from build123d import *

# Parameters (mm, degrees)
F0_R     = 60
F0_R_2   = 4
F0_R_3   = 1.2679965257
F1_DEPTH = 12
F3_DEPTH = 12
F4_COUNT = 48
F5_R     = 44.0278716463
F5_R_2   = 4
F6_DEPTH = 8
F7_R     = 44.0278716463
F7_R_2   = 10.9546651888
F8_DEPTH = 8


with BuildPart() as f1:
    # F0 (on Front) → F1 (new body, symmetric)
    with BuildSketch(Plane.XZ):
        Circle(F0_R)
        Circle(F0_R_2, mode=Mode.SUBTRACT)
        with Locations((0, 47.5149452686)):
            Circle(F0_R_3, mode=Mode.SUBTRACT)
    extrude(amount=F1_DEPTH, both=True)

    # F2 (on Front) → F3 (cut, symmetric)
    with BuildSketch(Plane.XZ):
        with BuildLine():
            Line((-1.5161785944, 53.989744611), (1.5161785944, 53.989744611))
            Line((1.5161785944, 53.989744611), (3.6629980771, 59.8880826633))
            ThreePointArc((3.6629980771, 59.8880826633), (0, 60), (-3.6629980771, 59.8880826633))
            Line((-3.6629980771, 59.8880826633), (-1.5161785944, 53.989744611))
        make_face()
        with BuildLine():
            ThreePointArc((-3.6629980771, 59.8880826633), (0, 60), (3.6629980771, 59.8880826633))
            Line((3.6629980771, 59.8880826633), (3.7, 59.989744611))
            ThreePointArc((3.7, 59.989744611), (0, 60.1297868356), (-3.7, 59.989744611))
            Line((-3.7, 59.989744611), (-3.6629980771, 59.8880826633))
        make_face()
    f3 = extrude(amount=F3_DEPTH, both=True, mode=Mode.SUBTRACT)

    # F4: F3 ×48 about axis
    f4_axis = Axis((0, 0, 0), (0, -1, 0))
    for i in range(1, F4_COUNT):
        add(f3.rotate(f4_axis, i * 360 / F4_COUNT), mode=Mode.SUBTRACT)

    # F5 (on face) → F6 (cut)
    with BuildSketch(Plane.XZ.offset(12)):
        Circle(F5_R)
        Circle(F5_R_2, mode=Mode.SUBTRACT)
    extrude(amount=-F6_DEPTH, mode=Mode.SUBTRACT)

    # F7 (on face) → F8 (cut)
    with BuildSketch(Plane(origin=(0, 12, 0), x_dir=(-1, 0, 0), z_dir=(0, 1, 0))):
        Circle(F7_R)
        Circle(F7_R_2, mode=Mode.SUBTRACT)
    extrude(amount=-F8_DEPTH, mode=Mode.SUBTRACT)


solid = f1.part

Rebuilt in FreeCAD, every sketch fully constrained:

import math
import FreeCAD as App
import Part
import Sketcher
from FreeCAD import Vector
Q = App.Units.Quantity

doc = App.newDocument("Part")
params = doc.addObject("Spreadsheet::Sheet", "Params")
for row, (alias, value) in enumerate([
    ("sketch1_diameter", "120 mm"),
    ("sketch1_diameter2", "8 mm"),
    ("pad1_length", "24 mm"),
    ("pocket1_length", "24 mm"),
    ("sketch3_diameter", "8 mm"),
    ("pocket2_length", "8 mm"),
    ("pocket3_length", "8 mm"),
], start=1):
    params.set(f"A{row}", alias)
    params.set(f"B{row}", "=" + value)
    params.setAlias(f"B{row}", alias)

body = doc.addObject("PartDesign::Body", "Body")

sketch1 = body.newObject("Sketcher::SketchObject", "Sketch")
sketch1.AttachmentSupport = (doc.getObject("XZ_Plane"), [""])
sketch1.MapMode = "FlatFace"
sketch1.addGeometry([
    Part.Circle(Vector(0, 0, 0), Vector(0, 0, 1), 60),
    Part.Circle(Vector(0, 0, 0), Vector(0, 0, 1), 4),
    Part.Circle(Vector(0, 47.5, 0), Vector(0, 0, 1), 1.3),
], False)
sketch1.addConstraint([
    Sketcher.Constraint("Coincident", 0, 3, -1, 1),
    Sketcher.Constraint("Coincident", 1, 3, -1, 1),
    Sketcher.Constraint("PointOnObject", 2, 3, -2),
    Sketcher.Constraint("Diameter", 0, 120.0),
    Sketcher.Constraint("Diameter", 1, 8.0),
    Sketcher.Constraint("Diameter", 2, 2.535993),
    Sketcher.Constraint("DistanceY", -1, 1, 2, 3, 47.514945),
])
sketch1.setExpression("Constraints[3]", "Params.sketch1_diameter")
sketch1.setExpression("Constraints[4]", "Params.sketch1_diameter2")
pad1 = body.newObject("PartDesign::Pad", "Pad")
pad1.Profile = sketch1
pad1.setExpression("Length", "Params.pad1_length")
pad1.Midplane = True

sketch2 = body.newObject("Sketcher::SketchObject", "Sketch001")
sketch2.AttachmentSupport = (doc.getObject("XZ_Plane"), [""])
sketch2.MapMode = "FlatFace"
sketch2.addGeometry([
    Part.LineSegment(Vector(-1.52, 53.99, 0), Vector(1.52, 53.99, 0)),
    Part.LineSegment(Vector(1.52, 53.99, 0), Vector(3.66, 59.89, 0)),
    Part.LineSegment(Vector(3.66, 59.89, 0), Vector(3.7, 59.99, 0)),
    Part.ArcOfCircle(Part.Circle(Vector(0, 11.18, 0), Vector(0, 0, 1), 48.95), math.radians(85.66), math.radians(94.34)),
    Part.LineSegment(Vector(-3.7, 59.99, 0), Vector(-3.66, 59.89, 0)),
    Part.LineSegment(Vector(-3.66, 59.89, 0), Vector(-1.52, 53.99, 0)),
], False)
sketch2.addConstraint([
    Sketcher.Constraint("Coincident", 0, 2, 1, 1),
    Sketcher.Constraint("Coincident", 1, 2, 2, 1),
    Sketcher.Constraint("Coincident", 2, 2, 3, 1),
    Sketcher.Constraint("Coincident", 3, 2, 4, 1),
    Sketcher.Constraint("Coincident", 4, 2, 5, 1),
    Sketcher.Constraint("Coincident", 5, 2, 0, 1),
    Sketcher.Constraint("Horizontal", 0),
    Sketcher.Constraint("Symmetric", 2, 2, 3, 2, -2),
    Sketcher.Constraint("Symmetric", 1, 2, 4, 2, -2),
    Sketcher.Constraint("Parallel", 1, 2),
    Sketcher.Constraint("Parallel", 4, 5),
    Sketcher.Constraint("Angle", 1, Q("70 deg")),
    Sketcher.Constraint("DistanceY", 0, 2, 2, 2, 6.0),
    Sketcher.Constraint("DistanceX", -1, 1, 2, 2, 3.7),
    Sketcher.Constraint("DistanceX", -1, 1, 1, 2, 3.662998),
    Sketcher.Constraint("Radius", 3, 48.948136),
    Sketcher.Constraint("DistanceY", -1, 1, 3, 3, 11.18165),
])
pocket1 = body.newObject("PartDesign::Pocket", "Pocket")
pocket1.Profile = sketch2
pocket1.setExpression("Length", "Params.pocket1_length")
pocket1.Midplane = True
doc.recompute()

polarpattern = body.newObject("PartDesign::PolarPattern", "PolarPattern")
polarpattern.Originals = [pocket1]
polarpattern.Axis = (doc.getObject("Y_Axis"), [""])
polarpattern.Angle = 360
polarpattern.Occurrences = 48
body.Tip = polarpattern

sketch3 = body.newObject("Sketcher::SketchObject", "Sketch002")
sketch3.AttachmentSupport = (doc.getObject("XZ_Plane"), [""])
sketch3.MapMode = "FlatFace"
sketch3.AttachmentOffset = App.Placement(Vector(0, 0, 12), App.Rotation())
sketch3.addGeometry([
    Part.Circle(Vector(0, 0, 0), Vector(0, 0, 1), 44),
    Part.Circle(Vector(0, 0, 0), Vector(0, 0, 1), 4),
], False)
sketch3.addConstraint([
    Sketcher.Constraint("Coincident", 0, 3, -1, 1),
    Sketcher.Constraint("Coincident", 1, 3, -1, 1),
    Sketcher.Constraint("Diameter", 1, 8.0),
    Sketcher.Constraint("Diameter", 0, 88.055743),
])
sketch3.setExpression("Constraints[2]", "Params.sketch3_diameter")
pocket2 = body.newObject("PartDesign::Pocket", "Pocket001")
pocket2.Profile = sketch3
pocket2.setExpression("Length", "Params.pocket2_length")

sketch4 = body.newObject("Sketcher::SketchObject", "Sketch003")
sketch4.AttachmentSupport = (doc.getObject("XZ_Plane"), [""])
sketch4.MapMode = "FlatFace"
sketch4.AttachmentOffset = App.Placement(Vector(0, 0, -12), App.Rotation())
sketch4.addGeometry([
    Part.Circle(Vector(0, 0, 0), Vector(0, 0, 1), 44),
    Part.Circle(Vector(0, 0, 0), Vector(0, 0, 1), 11),
], False)
sketch4.addConstraint([
    Sketcher.Constraint("Coincident", 0, 3, -1, 1),
    Sketcher.Constraint("Coincident", 1, 3, -1, 1),
    Sketcher.Constraint("Diameter", 1, 21.90933),
    Sketcher.Constraint("Diameter", 0, 88.055743),
])
pocket3 = body.newObject("PartDesign::Pocket", "Pocket002")
pocket3.Profile = sketch4
pocket3.setExpression("Length", "Params.pocket3_length")
pocket3.Reversed = True

doc.recompute()
